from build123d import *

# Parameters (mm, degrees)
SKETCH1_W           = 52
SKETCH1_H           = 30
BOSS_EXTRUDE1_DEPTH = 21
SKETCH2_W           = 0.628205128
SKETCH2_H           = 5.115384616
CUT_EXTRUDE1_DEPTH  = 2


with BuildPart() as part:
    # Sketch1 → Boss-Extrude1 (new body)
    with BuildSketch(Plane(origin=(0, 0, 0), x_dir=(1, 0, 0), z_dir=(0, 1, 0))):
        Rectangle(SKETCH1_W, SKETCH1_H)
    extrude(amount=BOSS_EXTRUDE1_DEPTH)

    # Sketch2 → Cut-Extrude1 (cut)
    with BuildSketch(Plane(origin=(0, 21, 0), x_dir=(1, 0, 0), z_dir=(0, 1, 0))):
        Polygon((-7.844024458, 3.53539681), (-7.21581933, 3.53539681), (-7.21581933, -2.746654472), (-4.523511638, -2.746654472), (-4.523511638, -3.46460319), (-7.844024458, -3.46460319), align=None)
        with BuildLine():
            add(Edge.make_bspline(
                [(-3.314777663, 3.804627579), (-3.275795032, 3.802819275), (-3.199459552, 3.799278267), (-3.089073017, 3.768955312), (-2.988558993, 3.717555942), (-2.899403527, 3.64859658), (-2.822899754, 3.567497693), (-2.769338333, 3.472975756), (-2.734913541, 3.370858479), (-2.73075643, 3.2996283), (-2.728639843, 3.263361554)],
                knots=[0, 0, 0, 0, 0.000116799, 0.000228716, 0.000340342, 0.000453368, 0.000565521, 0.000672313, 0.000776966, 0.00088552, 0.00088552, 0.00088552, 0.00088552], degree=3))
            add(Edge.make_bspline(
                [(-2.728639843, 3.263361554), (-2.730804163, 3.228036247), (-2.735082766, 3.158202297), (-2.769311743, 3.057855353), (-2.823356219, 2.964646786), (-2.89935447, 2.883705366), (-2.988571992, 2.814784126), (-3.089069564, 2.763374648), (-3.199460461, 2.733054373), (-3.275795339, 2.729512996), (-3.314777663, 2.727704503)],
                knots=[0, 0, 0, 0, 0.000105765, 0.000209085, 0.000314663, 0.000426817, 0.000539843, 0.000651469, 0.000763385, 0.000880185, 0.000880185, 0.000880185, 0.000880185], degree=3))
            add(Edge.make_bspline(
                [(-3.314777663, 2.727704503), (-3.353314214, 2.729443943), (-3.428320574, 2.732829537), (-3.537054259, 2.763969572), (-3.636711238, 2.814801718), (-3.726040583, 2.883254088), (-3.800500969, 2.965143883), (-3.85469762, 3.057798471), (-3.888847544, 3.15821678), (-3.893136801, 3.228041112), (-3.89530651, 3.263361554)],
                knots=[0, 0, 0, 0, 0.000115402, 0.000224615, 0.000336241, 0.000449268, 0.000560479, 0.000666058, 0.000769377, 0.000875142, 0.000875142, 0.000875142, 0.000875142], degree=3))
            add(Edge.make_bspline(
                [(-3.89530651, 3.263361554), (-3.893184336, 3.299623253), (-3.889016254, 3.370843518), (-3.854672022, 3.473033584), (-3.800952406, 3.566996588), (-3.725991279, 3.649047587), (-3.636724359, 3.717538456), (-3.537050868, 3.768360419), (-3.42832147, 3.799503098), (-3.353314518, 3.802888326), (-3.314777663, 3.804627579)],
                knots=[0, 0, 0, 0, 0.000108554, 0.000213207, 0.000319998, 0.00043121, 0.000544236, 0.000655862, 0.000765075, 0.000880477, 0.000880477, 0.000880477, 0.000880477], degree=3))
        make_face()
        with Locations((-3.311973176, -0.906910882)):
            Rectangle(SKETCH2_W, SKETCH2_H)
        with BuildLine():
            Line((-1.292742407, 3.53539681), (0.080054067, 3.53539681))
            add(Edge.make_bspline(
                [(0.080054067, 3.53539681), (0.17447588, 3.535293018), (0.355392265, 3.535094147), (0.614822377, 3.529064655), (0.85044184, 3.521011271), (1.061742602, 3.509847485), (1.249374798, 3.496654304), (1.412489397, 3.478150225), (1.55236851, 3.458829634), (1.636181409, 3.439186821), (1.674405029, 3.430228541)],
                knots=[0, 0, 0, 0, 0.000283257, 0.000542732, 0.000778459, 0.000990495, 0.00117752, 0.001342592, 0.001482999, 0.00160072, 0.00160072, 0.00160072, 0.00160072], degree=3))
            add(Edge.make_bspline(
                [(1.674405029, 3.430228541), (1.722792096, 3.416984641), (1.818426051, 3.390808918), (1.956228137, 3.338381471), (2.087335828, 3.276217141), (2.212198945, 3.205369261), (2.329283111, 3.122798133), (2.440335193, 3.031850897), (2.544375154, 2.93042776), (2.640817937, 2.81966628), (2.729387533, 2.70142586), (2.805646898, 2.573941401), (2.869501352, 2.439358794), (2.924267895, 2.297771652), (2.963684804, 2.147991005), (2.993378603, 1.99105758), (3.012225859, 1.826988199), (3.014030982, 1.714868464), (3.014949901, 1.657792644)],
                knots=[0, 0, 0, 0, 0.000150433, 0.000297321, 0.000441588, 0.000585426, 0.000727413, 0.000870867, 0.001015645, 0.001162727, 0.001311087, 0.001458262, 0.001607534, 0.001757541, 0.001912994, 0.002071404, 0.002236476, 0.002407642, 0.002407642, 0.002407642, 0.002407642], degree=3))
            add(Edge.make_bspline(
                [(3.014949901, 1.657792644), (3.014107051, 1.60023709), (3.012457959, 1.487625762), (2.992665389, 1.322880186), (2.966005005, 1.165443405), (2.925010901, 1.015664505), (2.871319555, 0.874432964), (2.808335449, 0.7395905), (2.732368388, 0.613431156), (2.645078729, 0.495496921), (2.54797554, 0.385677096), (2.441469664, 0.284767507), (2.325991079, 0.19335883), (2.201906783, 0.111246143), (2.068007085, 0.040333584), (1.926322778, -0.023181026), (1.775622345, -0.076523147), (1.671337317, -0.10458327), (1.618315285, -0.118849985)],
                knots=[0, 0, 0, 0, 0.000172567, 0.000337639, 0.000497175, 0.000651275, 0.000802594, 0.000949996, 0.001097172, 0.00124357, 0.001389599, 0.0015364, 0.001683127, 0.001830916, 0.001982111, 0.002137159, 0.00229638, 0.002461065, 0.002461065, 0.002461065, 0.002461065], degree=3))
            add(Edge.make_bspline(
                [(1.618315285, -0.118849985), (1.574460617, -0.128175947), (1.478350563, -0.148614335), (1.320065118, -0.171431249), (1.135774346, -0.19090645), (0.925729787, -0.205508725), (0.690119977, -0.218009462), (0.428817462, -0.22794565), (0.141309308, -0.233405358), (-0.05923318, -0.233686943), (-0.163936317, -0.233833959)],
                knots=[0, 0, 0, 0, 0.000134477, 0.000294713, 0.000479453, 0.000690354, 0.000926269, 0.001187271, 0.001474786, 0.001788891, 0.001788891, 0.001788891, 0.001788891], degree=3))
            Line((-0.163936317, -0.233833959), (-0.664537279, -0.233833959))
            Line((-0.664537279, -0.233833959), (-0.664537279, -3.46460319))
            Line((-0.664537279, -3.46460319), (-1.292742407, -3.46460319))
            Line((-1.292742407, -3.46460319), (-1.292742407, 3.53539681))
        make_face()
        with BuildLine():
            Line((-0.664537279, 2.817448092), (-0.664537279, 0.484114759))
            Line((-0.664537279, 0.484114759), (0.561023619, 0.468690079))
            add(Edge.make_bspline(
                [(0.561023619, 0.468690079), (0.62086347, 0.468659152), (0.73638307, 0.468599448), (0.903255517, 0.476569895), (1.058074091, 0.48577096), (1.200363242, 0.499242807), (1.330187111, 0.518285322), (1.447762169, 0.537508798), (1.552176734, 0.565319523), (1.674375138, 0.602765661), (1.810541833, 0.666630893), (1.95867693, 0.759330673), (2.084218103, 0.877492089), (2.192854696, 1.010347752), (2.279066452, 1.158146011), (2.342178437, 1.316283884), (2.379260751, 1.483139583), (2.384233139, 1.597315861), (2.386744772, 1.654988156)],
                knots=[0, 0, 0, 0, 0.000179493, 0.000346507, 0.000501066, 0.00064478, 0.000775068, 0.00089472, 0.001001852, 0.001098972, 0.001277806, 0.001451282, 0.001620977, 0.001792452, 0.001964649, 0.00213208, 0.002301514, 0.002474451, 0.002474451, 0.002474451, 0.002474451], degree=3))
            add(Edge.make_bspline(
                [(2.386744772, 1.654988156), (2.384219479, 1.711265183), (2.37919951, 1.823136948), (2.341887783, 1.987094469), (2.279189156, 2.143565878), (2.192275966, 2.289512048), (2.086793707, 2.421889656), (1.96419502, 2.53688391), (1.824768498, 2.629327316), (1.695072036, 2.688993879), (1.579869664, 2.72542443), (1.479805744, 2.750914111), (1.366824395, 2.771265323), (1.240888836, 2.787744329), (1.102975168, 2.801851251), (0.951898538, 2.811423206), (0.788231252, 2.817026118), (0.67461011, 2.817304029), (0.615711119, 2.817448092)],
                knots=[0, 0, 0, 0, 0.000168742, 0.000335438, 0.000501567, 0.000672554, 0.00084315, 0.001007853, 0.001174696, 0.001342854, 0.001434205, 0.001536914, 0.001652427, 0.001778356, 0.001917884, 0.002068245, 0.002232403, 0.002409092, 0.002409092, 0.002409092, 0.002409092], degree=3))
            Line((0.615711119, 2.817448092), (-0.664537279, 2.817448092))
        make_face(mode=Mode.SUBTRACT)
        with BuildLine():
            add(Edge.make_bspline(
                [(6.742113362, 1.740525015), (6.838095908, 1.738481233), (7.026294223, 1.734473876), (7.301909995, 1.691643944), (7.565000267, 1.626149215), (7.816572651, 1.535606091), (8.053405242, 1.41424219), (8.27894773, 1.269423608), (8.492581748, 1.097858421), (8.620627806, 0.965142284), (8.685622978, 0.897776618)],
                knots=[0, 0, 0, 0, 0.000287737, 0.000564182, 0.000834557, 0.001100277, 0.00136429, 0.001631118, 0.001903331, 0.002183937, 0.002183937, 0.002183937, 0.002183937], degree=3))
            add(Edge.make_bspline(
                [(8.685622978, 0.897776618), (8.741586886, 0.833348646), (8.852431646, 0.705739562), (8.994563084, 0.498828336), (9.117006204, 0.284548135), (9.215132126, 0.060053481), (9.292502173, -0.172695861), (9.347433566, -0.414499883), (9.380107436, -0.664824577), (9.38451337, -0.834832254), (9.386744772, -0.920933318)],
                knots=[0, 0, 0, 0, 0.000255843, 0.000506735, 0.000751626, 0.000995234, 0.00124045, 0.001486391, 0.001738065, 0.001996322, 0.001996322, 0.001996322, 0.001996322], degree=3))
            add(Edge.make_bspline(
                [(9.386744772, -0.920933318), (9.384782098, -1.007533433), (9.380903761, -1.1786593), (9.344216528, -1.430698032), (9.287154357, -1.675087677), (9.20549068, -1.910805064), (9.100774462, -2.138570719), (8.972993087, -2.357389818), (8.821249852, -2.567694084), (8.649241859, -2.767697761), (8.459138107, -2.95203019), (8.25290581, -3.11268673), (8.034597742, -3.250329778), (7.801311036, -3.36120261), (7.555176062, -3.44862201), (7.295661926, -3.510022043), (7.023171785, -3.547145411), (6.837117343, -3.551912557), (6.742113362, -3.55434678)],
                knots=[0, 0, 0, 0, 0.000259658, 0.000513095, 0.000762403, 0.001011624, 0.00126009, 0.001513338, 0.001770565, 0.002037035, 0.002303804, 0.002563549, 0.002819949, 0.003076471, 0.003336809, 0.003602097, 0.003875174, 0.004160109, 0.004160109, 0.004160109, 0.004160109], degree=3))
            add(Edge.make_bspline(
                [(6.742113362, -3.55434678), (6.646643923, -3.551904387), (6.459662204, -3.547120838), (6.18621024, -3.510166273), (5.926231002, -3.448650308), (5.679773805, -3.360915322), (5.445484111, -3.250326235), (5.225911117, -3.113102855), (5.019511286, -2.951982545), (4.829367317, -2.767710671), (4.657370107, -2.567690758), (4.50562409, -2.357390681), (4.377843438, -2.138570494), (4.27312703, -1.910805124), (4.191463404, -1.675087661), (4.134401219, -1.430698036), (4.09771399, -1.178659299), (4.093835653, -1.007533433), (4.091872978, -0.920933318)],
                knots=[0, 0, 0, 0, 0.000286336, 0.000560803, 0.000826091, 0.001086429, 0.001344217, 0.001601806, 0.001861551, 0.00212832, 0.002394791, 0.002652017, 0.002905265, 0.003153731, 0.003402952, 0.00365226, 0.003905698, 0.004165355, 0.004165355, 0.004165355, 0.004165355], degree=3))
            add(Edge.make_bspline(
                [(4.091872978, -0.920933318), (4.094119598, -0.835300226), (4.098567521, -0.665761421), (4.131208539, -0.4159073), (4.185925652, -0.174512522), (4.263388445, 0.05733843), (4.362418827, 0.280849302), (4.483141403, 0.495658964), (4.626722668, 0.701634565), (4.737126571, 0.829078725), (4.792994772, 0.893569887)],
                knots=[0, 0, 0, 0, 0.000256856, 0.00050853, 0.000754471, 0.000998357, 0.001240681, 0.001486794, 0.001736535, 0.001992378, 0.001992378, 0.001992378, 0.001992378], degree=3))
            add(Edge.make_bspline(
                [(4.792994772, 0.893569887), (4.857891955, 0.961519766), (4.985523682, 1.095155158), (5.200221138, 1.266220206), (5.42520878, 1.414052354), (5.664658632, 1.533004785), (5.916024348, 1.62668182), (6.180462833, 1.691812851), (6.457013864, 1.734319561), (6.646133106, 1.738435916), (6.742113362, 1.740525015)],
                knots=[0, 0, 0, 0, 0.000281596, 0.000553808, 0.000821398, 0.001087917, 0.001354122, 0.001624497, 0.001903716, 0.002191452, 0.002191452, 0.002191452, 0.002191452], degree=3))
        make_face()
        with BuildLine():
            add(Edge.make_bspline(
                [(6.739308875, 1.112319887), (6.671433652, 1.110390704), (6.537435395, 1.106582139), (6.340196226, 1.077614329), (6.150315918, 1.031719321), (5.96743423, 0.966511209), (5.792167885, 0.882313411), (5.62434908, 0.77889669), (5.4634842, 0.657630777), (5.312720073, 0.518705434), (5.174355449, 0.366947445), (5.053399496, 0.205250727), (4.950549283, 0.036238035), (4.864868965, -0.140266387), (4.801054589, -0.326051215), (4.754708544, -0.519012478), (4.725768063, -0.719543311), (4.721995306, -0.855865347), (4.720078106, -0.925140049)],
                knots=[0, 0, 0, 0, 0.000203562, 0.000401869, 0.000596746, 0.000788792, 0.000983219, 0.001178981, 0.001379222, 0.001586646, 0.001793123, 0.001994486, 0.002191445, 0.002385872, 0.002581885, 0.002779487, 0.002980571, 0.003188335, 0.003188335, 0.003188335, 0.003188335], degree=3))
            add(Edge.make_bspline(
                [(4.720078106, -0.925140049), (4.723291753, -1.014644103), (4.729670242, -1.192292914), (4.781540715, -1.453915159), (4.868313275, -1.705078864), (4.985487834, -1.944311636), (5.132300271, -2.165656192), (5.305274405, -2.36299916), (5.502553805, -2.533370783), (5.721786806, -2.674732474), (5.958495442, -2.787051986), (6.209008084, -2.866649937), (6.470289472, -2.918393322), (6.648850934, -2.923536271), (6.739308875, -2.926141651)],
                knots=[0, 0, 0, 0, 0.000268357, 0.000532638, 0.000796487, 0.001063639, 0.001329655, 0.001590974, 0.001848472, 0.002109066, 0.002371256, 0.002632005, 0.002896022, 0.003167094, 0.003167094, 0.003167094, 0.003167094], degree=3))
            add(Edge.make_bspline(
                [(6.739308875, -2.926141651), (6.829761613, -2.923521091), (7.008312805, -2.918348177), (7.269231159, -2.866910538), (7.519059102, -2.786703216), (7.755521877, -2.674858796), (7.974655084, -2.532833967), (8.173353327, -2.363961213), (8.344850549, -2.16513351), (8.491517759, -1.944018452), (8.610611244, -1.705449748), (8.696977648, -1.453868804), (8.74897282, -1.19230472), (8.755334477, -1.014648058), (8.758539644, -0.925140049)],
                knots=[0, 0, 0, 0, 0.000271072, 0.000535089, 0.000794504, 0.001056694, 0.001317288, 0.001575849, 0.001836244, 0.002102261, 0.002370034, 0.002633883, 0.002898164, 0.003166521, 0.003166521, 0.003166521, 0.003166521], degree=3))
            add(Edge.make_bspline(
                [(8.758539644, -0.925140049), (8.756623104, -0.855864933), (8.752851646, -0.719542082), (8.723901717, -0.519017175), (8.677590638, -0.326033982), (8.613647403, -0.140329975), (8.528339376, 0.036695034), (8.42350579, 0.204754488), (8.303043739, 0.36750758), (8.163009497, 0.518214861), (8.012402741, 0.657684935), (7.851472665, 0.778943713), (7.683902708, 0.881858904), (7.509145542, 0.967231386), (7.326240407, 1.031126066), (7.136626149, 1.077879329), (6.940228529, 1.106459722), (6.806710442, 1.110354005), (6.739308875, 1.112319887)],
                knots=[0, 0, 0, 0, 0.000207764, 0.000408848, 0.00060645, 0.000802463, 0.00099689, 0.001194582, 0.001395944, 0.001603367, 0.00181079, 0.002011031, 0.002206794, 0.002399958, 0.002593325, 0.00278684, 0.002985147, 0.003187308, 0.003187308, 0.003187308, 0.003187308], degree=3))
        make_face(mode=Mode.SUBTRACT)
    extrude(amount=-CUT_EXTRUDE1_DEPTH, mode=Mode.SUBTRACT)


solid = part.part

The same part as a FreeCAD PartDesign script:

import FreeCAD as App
import Part
import Sketcher

V = App.Vector

doc = App.newDocument("Part")
body = doc.addObject("PartDesign::Body", "Body")

# Sketch on XZ plane
sketch1 = body.newObject("Sketcher::SketchObject", "Sketch")
sketch1.AttachmentSupport = (doc.getObject("XZ_Plane"), [""])
sketch1.MapMode = "FlatFace"
sketch1.addGeometry(Part.LineSegment(V(-26, -15, 0), V(-26, 15, 0)), False)
sketch1.addGeometry(Part.LineSegment(V(-26, 15, 0), V(26, 15, 0)), False)
sketch1.addGeometry(Part.LineSegment(V(26, 15, 0), V(26, -15, 0)), False)
sketch1.addGeometry(Part.LineSegment(V(26, -15, 0), V(-26, -15, 0)), False)
sketch1.addConstraint(Sketcher.Constraint("Coincident", 0, 2, 1, 1))
sketch1.addConstraint(Sketcher.Constraint("Coincident", 1, 2, 2, 1))
sketch1.addConstraint(Sketcher.Constraint("Coincident", 2, 2, 3, 1))
sketch1.addConstraint(Sketcher.Constraint("Coincident", 3, 2, 0, 1))
sketch1.addConstraint(Sketcher.Constraint("Vertical", 0))
sketch1.addConstraint(Sketcher.Constraint("Horizontal", 1))
sketch1.addConstraint(Sketcher.Constraint("Vertical", 2))
sketch1.addConstraint(Sketcher.Constraint("Horizontal", 3))
sketch1.addConstraint(Sketcher.Constraint("Symmetric", 0, 2, 2, 2, -1, 1))
sketch1.addConstraint(Sketcher.Constraint("DistanceX", 1, 1, 1, 2, 52.0))
sketch1.addConstraint(Sketcher.Constraint("DistanceY", 0, 1, 0, 2, 30.0))
pad1 = body.newObject("PartDesign::Pad", "Pad")
pad1.Profile = sketch1
pad1.Length = 21
pad1.Reversed = True

# Sketch on XZ plane
sketch2 = body.newObject("Sketcher::SketchObject", "Sketch001")
sketch2.AttachmentSupport = (doc.getObject("XZ_Plane"), [""])
sketch2.MapMode = "FlatFace"
sketch2.AttachmentOffset = App.Placement(V(0, 0, -21), App.Rotation())
sketch2.addGeometry(Part.LineSegment(V(-7.215819, -3.535397, 0), V(-7.844024, -3.535397, 0)), False)
sketch2.addGeometry(Part.LineSegment(V(-7.844024, -3.535397, 0), V(-7.844024, 3.464603, 0)), False)
sketch2.addGeometry(Part.LineSegment(V(-7.844024, 3.464603, 0), V(-4.523512, 3.464603, 0)), False)
sketch2.addGeometry(Part.LineSegment(V(-4.523512, 3.464603, 0), V(-4.523512, 2.746654, 0)), False)
sketch2.addGeometry(Part.LineSegment(V(-4.523512, 2.746654, 0), V(-7.215819, 2.746654, 0)), False)
sketch2.addGeometry(Part.LineSegment(V(-7.215819, 2.746654, 0), V(-7.215819, -3.535397, 0)), False)
sketch2.addGeometry(Part.BSplineCurve([V(-3.314778, -3.804628, 0), V(-3.275795, -3.802819, 0), V(-3.19946, -3.799278, 0), V(-3.089073, -3.768955, 0), V(-2.988559, -3.717556, 0), V(-2.899404, -3.648597, 0), V(-2.8229, -3.567498, 0), V(-2.769338, -3.472976, 0), V(-2.734914, -3.370858, 0), V(-2.730756, -3.299628, 0), V(-2.72864, -3.263362, 0)], [4, 1, 1, 1, 1, 1, 1, 1, 4], [0, 0.000116799, 0.000228716, 0.000340342, 0.000453368, 0.000565521, 0.000672313, 0.000776966, 0.00088552], False, 3, [1, 1, 1, 1, 1, 1, 1, 1, 1, 1, 1], False), False)
sketch2.addGeometry(Part.BSplineCurve([V(-3.895307, -3.263362, 0), V(-3.893184, -3.299623, 0), V(-3.889016, -3.370844, 0), V(-3.854672, -3.473034, 0), V(-3.800952, -3.566997, 0), V(-3.725991, -3.649048, 0), V(-3.636724, -3.717538, 0), V(-3.537051, -3.76836, 0), V(-3.428321, -3.799503, 0), V(-3.353315, -3.802888, 0), V(-3.314778, -3.804628, 0)], [4, 1, 1, 1, 1, 1, 1, 1, 4], [0, 0.000108554, 0.000213207, 0.000319998, 0.00043121, 0.000544236, 0.000655862, 0.000765075, 0.000880477], False, 3, [1, 1, 1, 1, 1, 1, 1, 1, 1, 1, 1], False), False)
sketch2.addGeometry(Part.BSplineCurve([V(-3.314778, -2.727705, 0), V(-3.353314, -2.729444, 0), V(-3.428321, -2.73283, 0), V(-3.537054, -2.76397, 0), V(-3.636711, -2.814802, 0), V(-3.726041, -2.883254, 0), V(-3.800501, -2.965144, 0), V(-3.854698, -3.057798, 0), V(-3.888848, -3.158217, 0), V(-3.893137, -3.228041, 0), V(-3.895307, -3.263362, 0)], [4, 1, 1, 1, 1, 1, 1, 1, 4], [0, 0.000115402, 0.000224615, 0.000336241, 0.000449268, 0.000560479, 0.000666058, 0.000769377, 0.000875142], False, 3, [1, 1, 1, 1, 1, 1, 1, 1, 1, 1, 1], False), False)
sketch2.addGeometry(Part.BSplineCurve([V(-2.72864, -3.263362, 0), V(-2.730804, -3.228036, 0), V(-2.735083, -3.158202, 0), V(-2.769312, -3.057855, 0), V(-2.823356, -2.964647, 0), V(-2.899354, -2.883705, 0), V(-2.988572, -2.814784, 0), V(-3.08907, -2.763375, 0), V(-3.19946, -2.733054, 0), V(-3.275795, -2.729513, 0), V(-3.314778, -2.727705, 0)], [4, 1, 1, 1, 1, 1, 1, 1, 4], [0, 0.000105765, 0.000209085, 0.000314663, 0.000426817, 0.000539843, 0.000651469, 0.000763385, 0.000880185], False, 3, [1, 1, 1, 1, 1, 1, 1, 1, 1, 1, 1], False), False)
sketch2.addGeometry(Part.LineSegment(V(-3.626076, -1.650781, 0), V(-3.626076, 3.464603, 0)), False)
sketch2.addGeometry(Part.LineSegment(V(-3.626076, 3.464603, 0), V(-2.997871, 3.464603, 0)), False)
sketch2.addGeometry(Part.LineSegment(V(-2.997871, 3.464603, 0), V(-2.997871, -1.650781, 0)), False)
sketch2.addGeometry(Part.LineSegment(V(-2.997871, -1.650781, 0), V(-3.626076, -1.650781, 0)), False)
sketch2.addGeometry(Part.LineSegment(V(0.080054, -3.535397, 0), V(-1.292742, -3.535397, 0)), False)
sketch2.addGeometry(Part.LineSegment(V(-1.292742, -3.535397, 0), V(-1.292742, 3.464603, 0)), False)
sketch2.addGeometry(Part.LineSegment(V(-1.292742, 3.464603, 0), V(-0.664537, 3.464603, 0)), False)
sketch2.addGeometry(Part.LineSegment(V(-0.664537, 3.464603, 0), V(-0.664537, 0.233834, 0)), False)
sketch2.addGeometry(Part.LineSegment(V(-0.664537, 0.233834, 0), V(-0.163936, 0.233834, 0)), False)
sketch2.addGeometry(Part.BSplineCurve([V(1.618315, 0.11885, 0), V(1.574461, 0.128176, 0), V(1.478351, 0.148614, 0), V(1.320065, 0.171431, 0), V(1.135774, 0.190906, 0), V(0.92573, 0.205509, 0), V(0.69012, 0.218009, 0), V(0.428817, 0.227946, 0), V(0.141309, 0.233405, 0), V(-0.059233, 0.233687, 0), V(-0.163936, 0.233834, 0)], [4, 1, 1, 1, 1, 1, 1, 1, 4], [0, 0.000134477, 0.000294713, 0.000479453, 0.000690354, 0.000926269, 0.001187271, 0.001474786, 0.001788891], False, 3, [1, 1, 1, 1, 1, 1, 1, 1, 1, 1, 1], False), False)
sketch2.addGeometry(Part.BSplineCurve([V(3.01495, -1.657793, 0), V(3.014107, -1.600237, 0), V(3.012458, -1.487626, 0), V(2.992665, -1.32288, 0), V(2.966005, -1.165443, 0), V(2.925011, -1.015665, 0), V(2.87132, -0.874433, 0), V(2.808335, -0.739591, 0), V(2.732368, -0.613431, 0), V(2.645079, -0.495497, 0), V(2.547976, -0.385677, 0), V(2.44147, -0.284768, 0), V(2.325991, -0.193359, 0), V(2.201907, -0.111246, 0), V(2.068007, -0.040334, 0), V(1.926323, 0.023181, 0), V(1.775622, 0.076523, 0), V(1.671337, 0.104583, 0), V(1.618315, 0.11885, 0)], [4, 1, 1, 1, 1, 1, 1, 1, 1, 1, 1, 1, 1, 1, 1, 1, 4], [0, 0.000172567, 0.000337639, 0.000497175, 0.000651275, 0.000802594, 0.000949996, 0.001097172, 0.00124357, 0.001389599, 0.0015364, 0.001683127, 0.001830916, 0.001982111, 0.002137159, 0.00229638, 0.002461065], False, 3, [1, 1, 1, 1, 1, 1, 1, 1, 1, 1, 1, 1, 1, 1, 1, 1, 1, 1, 1], False), False)
sketch2.addGeometry(Part.BSplineCurve([V(1.674405, -3.430229, 0), V(1.722792, -3.416985, 0), V(1.818426, -3.390809, 0), V(1.956228, -3.338381, 0), V(2.087336, -3.276217, 0), V(2.212199, -3.205369, 0), V(2.329283, -3.122798, 0), V(2.440335, -3.031851, 0), V(2.544375, -2.930428, 0), V(2.640818, -2.819666, 0), V(2.729388, -2.701426, 0), V(2.805647, -2.573941, 0), V(2.869501, -2.439359, 0), V(2.924268, -2.297772, 0), V(2.963685, -2.147991, 0), V(2.993379, -1.991058, 0), V(3.012226, -1.826988, 0), V(3.014031, -1.714868, 0), V(3.01495, -1.657793, 0)], [4, 1, 1, 1, 1, 1, 1, 1, 1, 1, 1, 1, 1, 1, 1, 1, 4], [0, 0.000150433, 0.000297321, 0.000441588, 0.000585426, 0.000727413, 0.000870867, 0.001015645, 0.001162727, 0.001311087, 0.001458262, 0.001607534, 0.001757541, 0.001912994, 0.002071404, 0.002236476, 0.002407642], False, 3, [1, 1, 1, 1, 1, 1, 1, 1, 1, 1, 1, 1, 1, 1, 1, 1, 1, 1, 1], False), False)
sketch2.addGeometry(Part.BSplineCurve([V(0.080054, -3.535397, 0), V(0.174476, -3.535293, 0), V(0.355392, -3.535094, 0), V(0.614822, -3.529065, 0), V(0.850442, -3.521011, 0), V(1.061743, -3.509847, 0), V(1.249375, -3.496654, 0), V(1.412489, -3.47815, 0), V(1.552369, -3.45883, 0), V(1.636181, -3.439187, 0), V(1.674405, -3.430229, 0)], [4, 1, 1, 1, 1, 1, 1, 1, 4], [0, 0.000283257, 0.000542732, 0.000778459, 0.000990495, 0.00117752, 0.001342592, 0.001482999, 0.00160072], False, 3, [1, 1, 1, 1, 1, 1, 1, 1, 1, 1, 1], False), False)
sketch2.addGeometry(Part.LineSegment(V(-0.664537, -2.817448, 0), V(0.615711, -2.817448, 0)), False)
sketch2.addGeometry(Part.BSplineCurve([V(2.386745, -1.654988, 0), V(2.384219, -1.711265, 0), V(2.3792, -1.823137, 0), V(2.341888, -1.987094, 0), V(2.279189, -2.143566, 0), V(2.192276, -2.289512, 0), V(2.086794, -2.42189, 0), V(1.964195, -2.536884, 0), V(1.824768, -2.629327, 0), V(1.695072, -2.688994, 0), V(1.57987, -2.725424, 0), V(1.479806, -2.750914, 0), V(1.366824, -2.771265, 0), V(1.240889, -2.787744, 0), V(1.102975, -2.801851, 0), V(0.951899, -2.811423, 0), V(0.788231, -2.817026, 0), V(0.67461, -2.817304, 0), V(0.615711, -2.817448, 0)], [4, 1, 1, 1, 1, 1, 1, 1, 1, 1, 1, 1, 1, 1, 1, 1, 4], [0, 0.000168742, 0.000335438, 0.000501567, 0.000672554, 0.00084315, 0.001007853, 0.001174696, 0.001342854, 0.001434205, 0.001536914, 0.001652427, 0.001778356, 0.001917884, 0.002068245, 0.002232403, 0.002409092], False, 3, [1, 1, 1, 1, 1, 1, 1, 1, 1, 1, 1, 1, 1, 1, 1, 1, 1, 1, 1], False), False)
sketch2.addGeometry(Part.BSplineCurve([V(0.561024, -0.46869, 0), V(0.620863, -0.468659, 0), V(0.736383, -0.468599, 0), V(0.903256, -0.47657, 0), V(1.058074, -0.485771, 0), V(1.200363, -0.499243, 0), V(1.330187, -0.518285, 0), V(1.447762, -0.537509, 0), V(1.552177, -0.56532, 0), V(1.674375, -0.602766, 0), V(1.810542, -0.666631, 0), V(1.958677, -0.759331, 0), V(2.084218, -0.877492, 0), V(2.192855, -1.010348, 0), V(2.279066, -1.158146, 0), V(2.342178, -1.316284, 0), V(2.379261, -1.48314, 0), V(2.384233, -1.597316, 0), V(2.386745, -1.654988, 0)], [4, 1, 1, 1, 1, 1, 1, 1, 1, 1, 1, 1, 1, 1, 1, 1, 4], [0, 0.000179493, 0.000346507, 0.000501066, 0.00064478, 0.000775068, 0.00089472, 0.001001852, 0.001098972, 0.001277806, 0.001451282, 0.001620977, 0.001792452, 0.001964649, 0.00213208, 0.002301514, 0.002474451], False, 3, [1, 1, 1, 1, 1, 1, 1, 1, 1, 1, 1, 1, 1, 1, 1, 1, 1, 1, 1], False), False)
sketch2.addGeometry(Part.LineSegment(V(0.561024, -0.46869, 0), V(-0.664537, -0.484115, 0)), False)
sketch2.addGeometry(Part.LineSegment(V(-0.664537, -0.484115, 0), V(-0.664537, -2.817448, 0)), False)
sketch2.addGeometry(Part.BSplineCurve([V(6.742113, -1.740525, 0), V(6.838096, -1.738481, 0), V(7.026294, -1.734474, 0), V(7.30191, -1.691644, 0), V(7.565, -1.626149, 0), V(7.816573, -1.535606, 0), V(8.053405, -1.414242, 0), V(8.278948, -1.269424, 0), V(8.492582, -1.097858, 0), V(8.620628, -0.965142, 0), V(8.685623, -0.897777, 0)], [4, 1, 1, 1, 1, 1, 1, 1, 4], [0, 0.000287737, 0.000564182, 0.000834557, 0.001100277, 0.00136429, 0.001631118, 0.001903331, 0.002183937], False, 3, [1, 1, 1, 1, 1, 1, 1, 1, 1, 1, 1], False), False)
sketch2.addGeometry(Part.BSplineCurve([V(4.792995, -0.89357, 0), V(4.857892, -0.96152, 0), V(4.985524, -1.095155, 0), V(5.200221, -1.26622, 0), V(5.425209, -1.414052, 0), V(5.664659, -1.533005, 0), V(5.916024, -1.626682, 0), V(6.180463, -1.691813, 0), V(6.457014, -1.73432, 0), V(6.646133, -1.738436, 0), V(6.742113, -1.740525, 0)], [4, 1, 1, 1, 1, 1, 1, 1, 4], [0, 0.000281596, 0.000553808, 0.000821398, 0.001087917, 0.001354122, 0.001624497, 0.001903716, 0.002191452], False, 3, [1, 1, 1, 1, 1, 1, 1, 1, 1, 1, 1], False), False)
sketch2.addGeometry(Part.BSplineCurve([V(4.091873, 0.920933, 0), V(4.09412, 0.8353, 0), V(4.098568, 0.665761, 0), V(4.131209, 0.415907, 0), V(4.185926, 0.174513, 0), V(4.263388, -0.057338, 0), V(4.362419, -0.280849, 0), V(4.483141, -0.495659, 0), V(4.626723, -0.701635, 0), V(4.737127, -0.829079, 0), V(4.792995, -0.89357, 0)], [4, 1, 1, 1, 1, 1, 1, 1, 4], [0, 0.000256856, 0.00050853, 0.000754471, 0.000998357, 0.001240681, 0.001486794, 0.001736535, 0.001992378], False, 3, [1, 1, 1, 1, 1, 1, 1, 1, 1, 1, 1], False), False)
sketch2.addGeometry(Part.BSplineCurve([V(6.742113, 3.554347, 0), V(6.646644, 3.551904, 0), V(6.459662, 3.547121, 0), V(6.18621, 3.510166, 0), V(5.926231, 3.44865, 0), V(5.679774, 3.360915, 0), V(5.445484, 3.250326, 0), V(5.225911, 3.113103, 0), V(5.019511, 2.951983, 0), V(4.829367, 2.767711, 0), V(4.65737, 2.567691, 0), V(4.505624, 2.357391, 0), V(4.377843, 2.13857, 0), V(4.273127, 1.910805, 0), V(4.191463, 1.675088, 0), V(4.134401, 1.430698, 0), V(4.097714, 1.178659, 0), V(4.093836, 1.007533, 0), V(4.091873, 0.920933, 0)], [4, 1, 1, 1, 1, 1, 1, 1, 1, 1, 1, 1, 1, 1, 1, 1, 4], [0, 0.000286336, 0.000560803, 0.000826091, 0.001086429, 0.001344217, 0.001601806, 0.001861551, 0.00212832, 0.002394791, 0.002652017, 0.002905265, 0.003153731, 0.003402952, 0.00365226, 0.003905698, 0.004165355], False, 3, [1, 1, 1, 1, 1, 1, 1, 1, 1, 1, 1, 1, 1, 1, 1, 1, 1, 1, 1], False), False)
sketch2.addGeometry(Part.BSplineCurve([V(9.386745, 0.920933, 0), V(9.384782, 1.007533, 0), V(9.380904, 1.178659, 0), V(9.344217, 1.430698, 0), V(9.287154, 1.675088, 0), V(9.205491, 1.910805, 0), V(9.100774, 2.138571, 0), V(8.972993, 2.35739, 0), V(8.82125, 2.567694, 0), V(8.649242, 2.767698, 0), V(8.459138, 2.95203, 0), V(8.252906, 3.112687, 0), V(8.034598, 3.25033, 0), V(7.801311, 3.361203, 0), V(7.555176, 3.448622, 0), V(7.295662, 3.510022, 0), V(7.023172, 3.547145, 0), V(6.837117, 3.551913, 0), V(6.742113, 3.554347, 0)], [4, 1, 1, 1, 1, 1, 1, 1, 1, 1, 1, 1, 1, 1, 1, 1, 4], [0, 0.000259658, 0.000513095, 0.000762403, 0.001011624, 0.00126009, 0.001513338, 0.001770565, 0.002037035, 0.002303804, 0.002563549, 0.002819949, 0.003076471, 0.003336809, 0.003602097, 0.003875174, 0.004160109], False, 3, [1, 1, 1, 1, 1, 1, 1, 1, 1, 1, 1, 1, 1, 1, 1, 1, 1, 1, 1], False), False)
sketch2.addGeometry(Part.BSplineCurve([V(8.685623, -0.897777, 0), V(8.741587, -0.833349, 0), V(8.852432, -0.70574, 0), V(8.994563, -0.498828, 0), V(9.117006, -0.284548, 0), V(9.215132, -0.060053, 0), V(9.292502, 0.172696, 0), V(9.347434, 0.4145, 0), V(9.380107, 0.664825, 0), V(9.384513, 0.834832, 0), V(9.386745, 0.920933, 0)], [4, 1, 1, 1, 1, 1, 1, 1, 4], [0, 0.000255843, 0.000506735, 0.000751626, 0.000995234, 0.00124045, 0.001486391, 0.001738065, 0.001996322], False, 3, [1, 1, 1, 1, 1, 1, 1, 1, 1, 1, 1], False), False)
sketch2.addGeometry(Part.BSplineCurve([V(8.75854, 0.92514, 0), V(8.756623, 0.855865, 0), V(8.752852, 0.719542, 0), V(8.723902, 0.519017, 0), V(8.677591, 0.326034, 0), V(8.613647, 0.14033, 0), V(8.528339, -0.036695, 0), V(8.423506, -0.204754, 0), V(8.303044, -0.367508, 0), V(8.163009, -0.518215, 0), V(8.012403, -0.657685, 0), V(7.851473, -0.778944, 0), V(7.683903, -0.881859, 0), V(7.509146, -0.967231, 0), V(7.32624, -1.031126, 0), V(7.136626, -1.077879, 0), V(6.940229, -1.10646, 0), V(6.80671, -1.110354, 0), V(6.739309, -1.11232, 0)], [4, 1, 1, 1, 1, 1, 1, 1, 1, 1, 1, 1, 1, 1, 1, 1, 4], [0, 0.000207764, 0.000408848, 0.00060645, 0.000802463, 0.00099689, 0.001194582, 0.001395944, 0.001603367, 0.00181079, 0.002011031, 0.002206794, 0.002399958, 0.002593325, 0.00278684, 0.002985147, 0.003187308], False, 3, [1, 1, 1, 1, 1, 1, 1, 1, 1, 1, 1, 1, 1, 1, 1, 1, 1, 1, 1], False), False)
sketch2.addGeometry(Part.BSplineCurve([V(6.739309, 2.926142, 0), V(6.829762, 2.923521, 0), V(7.008313, 2.918348, 0), V(7.269231, 2.866911, 0), V(7.519059, 2.786703, 0), V(7.755522, 2.674859, 0), V(7.974655, 2.532834, 0), V(8.173353, 2.363961, 0), V(8.344851, 2.165134, 0), V(8.491518, 1.944018, 0), V(8.610611, 1.70545, 0), V(8.696978, 1.453869, 0), V(8.748973, 1.192305, 0), V(8.755334, 1.014648, 0), V(8.75854, 0.92514, 0)], [4, 1, 1, 1, 1, 1, 1, 1, 1, 1, 1, 1, 4], [0, 0.000271072, 0.000535089, 0.000794504, 0.001056694, 0.001317288, 0.001575849, 0.001836244, 0.002102261, 0.002370034, 0.002633883, 0.002898164, 0.003166521], False, 3, [1, 1, 1, 1, 1, 1, 1, 1, 1, 1, 1, 1, 1, 1, 1], False), False)
sketch2.addGeometry(Part.BSplineCurve([V(4.720078, 0.92514, 0), V(4.723292, 1.014644, 0), V(4.72967, 1.192293, 0), V(4.781541, 1.453915, 0), V(4.868313, 1.705079, 0), V(4.985488, 1.944312, 0), V(5.1323, 2.165656, 0), V(5.305274, 2.362999, 0), V(5.502554, 2.533371, 0), V(5.721787, 2.674732, 0), V(5.958495, 2.787052, 0), V(6.209008, 2.86665, 0), V(6.470289, 2.918393, 0), V(6.648851, 2.923536, 0), V(6.739309, 2.926142, 0)], [4, 1, 1, 1, 1, 1, 1, 1, 1, 1, 1, 1, 4], [0, 0.000268357, 0.000532638, 0.000796487, 0.001063639, 0.001329655, 0.001590974, 0.001848472, 0.002109066, 0.002371256, 0.002632005, 0.002896022, 0.003167094], False, 3, [1, 1, 1, 1, 1, 1, 1, 1, 1, 1, 1, 1, 1, 1, 1], False), False)
sketch2.addGeometry(Part.BSplineCurve([V(6.739309, -1.11232, 0), V(6.671434, -1.110391, 0), V(6.537435, -1.106582, 0), V(6.340196, -1.077614, 0), V(6.150316, -1.031719, 0), V(5.967434, -0.966511, 0), V(5.792168, -0.882313, 0), V(5.624349, -0.778897, 0), V(5.463484, -0.657631, 0), V(5.31272, -0.518705, 0), V(5.174355, -0.366947, 0), V(5.053399, -0.205251, 0), V(4.950549, -0.036238, 0), V(4.864869, 0.140266, 0), V(4.801055, 0.326051, 0), V(4.754709, 0.519012, 0), V(4.725768, 0.719543, 0), V(4.721995, 0.855865, 0), V(4.720078, 0.92514, 0)], [4, 1, 1, 1, 1, 1, 1, 1, 1, 1, 1, 1, 1, 1, 1, 1, 4], [0, 0.000203562, 0.000401869, 0.000596746, 0.000788792, 0.000983219, 0.001178981, 0.001379222, 0.001586646, 0.001793123, 0.001994486, 0.002191445, 0.002385872, 0.002581885, 0.002779487, 0.002980571, 0.003188335], False, 3, [1, 1, 1, 1, 1, 1, 1, 1, 1, 1, 1, 1, 1, 1, 1, 1, 1, 1, 1], False), False)
sketch2.addConstraint(Sketcher.Constraint("Block", 6))
sketch2.addConstraint(Sketcher.Constraint("Block", 7))
sketch2.addConstraint(Sketcher.Constraint("Block", 8))
sketch2.addConstraint(Sketcher.Constraint("Block", 9))
sketch2.addConstraint(Sketcher.Constraint("Block", 19))
sketch2.addConstraint(Sketcher.Constraint("Block", 20))
sketch2.addConstraint(Sketcher.Constraint("Block", 21))
sketch2.addConstraint(Sketcher.Constraint("Block", 22))
sketch2.addConstraint(Sketcher.Constraint("Block", 24))
sketch2.addConstraint(Sketcher.Constraint("Block", 25))
sketch2.addConstraint(Sketcher.Constraint("Block", 28))
sketch2.addConstraint(Sketcher.Constraint("Block", 29))
sketch2.addConstraint(Sketcher.Constraint("Block", 30))
sketch2.addConstraint(Sketcher.Constraint("Block", 31))
sketch2.addConstraint(Sketcher.Constraint("Block", 32))
sketch2.addConstraint(Sketcher.Constraint("Block", 33))
sketch2.addConstraint(Sketcher.Constraint("Block", 34))
sketch2.addConstraint(Sketcher.Constraint("Block", 35))
sketch2.addConstraint(Sketcher.Constraint("Block", 36))
sketch2.addConstraint(Sketcher.Constraint("Block", 37))
sketch2.addConstraint(Sketcher.Constraint("Coincident", 0, 2, 1, 1))
sketch2.addConstraint(Sketcher.Constraint("Coincident", 1, 2, 2, 1))
sketch2.addConstraint(Sketcher.Constraint("Coincident", 2, 2, 3, 1))
sketch2.addConstraint(Sketcher.Constraint("Coincident", 3, 2, 4, 1))
sketch2.addConstraint(Sketcher.Constraint("Coincident", 4, 2, 5, 1))
sketch2.addConstraint(Sketcher.Constraint("Coincident", 5, 2, 0, 1))
sketch2.addConstraint(Sketcher.Constraint("Coincident", 10, 2, 11, 1))
sketch2.addConstraint(Sketcher.Constraint("Coincident", 11, 2, 12, 1))
sketch2.addConstraint(Sketcher.Constraint("Coincident", 12, 2, 13, 1))
sketch2.addConstraint(Sketcher.Constraint("Coincident", 13, 2, 10, 1))
sketch2.addConstraint(Sketcher.Constraint("Coincident", 14, 2, 15, 1))
sketch2.addConstraint(Sketcher.Constraint("Coincident", 15, 2, 16, 1))
sketch2.addConstraint(Sketcher.Constraint("Coincident", 16, 2, 17, 1))
sketch2.addConstraint(Sketcher.Constraint("Coincident", 17, 2, 18, 1))
sketch2.addConstraint(Sketcher.Constraint("Coincident", 18, 2, 19, 2))
sketch2.addConstraint(Sketcher.Constraint("Coincident", 22, 1, 14, 1))
sketch2.addConstraint(Sketcher.Constraint("Coincident", 23, 2, 24, 2))
sketch2.addConstraint(Sketcher.Constraint("Coincident", 25, 1, 26, 1))
sketch2.addConstraint(Sketcher.Constraint("Coincident", 26, 2, 27, 1))
sketch2.addConstraint(Sketcher.Constraint("Coincident", 27, 2, 23, 1))
sketch2.addConstraint(Sketcher.Constraint("Horizontal", 0))
sketch2.addConstraint(Sketcher.Constraint("Vertical", 1))
sketch2.addConstraint(Sketcher.Constraint("Horizontal", 2))
sketch2.addConstraint(Sketcher.Constraint("Vertical", 3))
sketch2.addConstraint(Sketcher.Constraint("Horizontal", 4))
sketch2.addConstraint(Sketcher.Constraint("Vertical", 5))
sketch2.addConstraint(Sketcher.Constraint("Vertical", 10))
sketch2.addConstraint(Sketcher.Constraint("Horizontal", 11))
sketch2.addConstraint(Sketcher.Constraint("Vertical", 12))
sketch2.addConstraint(Sketcher.Constraint("Horizontal", 13))
sketch2.addConstraint(Sketcher.Constraint("Horizontal", 14))
sketch2.addConstraint(Sketcher.Constraint("Vertical", 15))
sketch2.addConstraint(Sketcher.Constraint("Horizontal", 16))
sketch2.addConstraint(Sketcher.Constraint("Vertical", 17))
sketch2.addConstraint(Sketcher.Constraint("Horizontal", 18))
sketch2.addConstraint(Sketcher.Constraint("Horizontal", 23))
sketch2.addConstraint(Sketcher.Constraint("Vertical", 27))
sketch2.addConstraint(Sketcher.Constraint("Horizontal", 2, 2, 10, 2))
sketch2.addConstraint(Sketcher.Constraint("Horizontal", 5, 2, 14, 2))
sketch2.addConstraint(Sketcher.Constraint("Horizontal", 11, 2, 15, 2))
sketch2.addConstraint(Sketcher.Constraint("Vertical", 17, 2, 26, 2))
sketch2.addConstraint(Sketcher.Constraint("Equal", 0, 11))
sketch2.addConstraint(Sketcher.Constraint("Equal", 13, 16))
sketch2.addConstraint(Sketcher.Constraint("DistanceY", 1, 1, 1, 2, 7.0))
sketch2.addConstraint(Sketcher.Constraint("DistanceX", 18, 1, 18, 2, 0.500601))
sketch2.addConstraint(Sketcher.Constraint("DistanceY", 3, 2, 3, 1, 0.717949))
sketch2.addConstraint(Sketcher.Constraint("DistanceX", 0, 2, 0, 1, 0.628205))
sketch2.addConstraint(Sketcher.Constraint("DistanceX", 2, 1, 2, 2, 3.320513))
sketch2.addConstraint(Sketcher.Constraint("DistanceY", 10, 1, 10, 2, 5.115385))
sketch2.addConstraint(Sketcher.Constraint("DistanceY", 27, 2, 27, 1, 2.333333))
sketch2.addConstraint(Sketcher.Constraint("DistanceX", 2, 2, -1, 1, 4.523512))
sketch2.addConstraint(Sketcher.Constraint("DistanceX", 11, 2, -1, 1, 2.997871))
pocket1 = body.newObject("PartDesign::Pocket", "Pocket")
pocket1.Profile = sketch2
pocket1.Length = 2
pocket1.Reversed = True

doc.recompute()
